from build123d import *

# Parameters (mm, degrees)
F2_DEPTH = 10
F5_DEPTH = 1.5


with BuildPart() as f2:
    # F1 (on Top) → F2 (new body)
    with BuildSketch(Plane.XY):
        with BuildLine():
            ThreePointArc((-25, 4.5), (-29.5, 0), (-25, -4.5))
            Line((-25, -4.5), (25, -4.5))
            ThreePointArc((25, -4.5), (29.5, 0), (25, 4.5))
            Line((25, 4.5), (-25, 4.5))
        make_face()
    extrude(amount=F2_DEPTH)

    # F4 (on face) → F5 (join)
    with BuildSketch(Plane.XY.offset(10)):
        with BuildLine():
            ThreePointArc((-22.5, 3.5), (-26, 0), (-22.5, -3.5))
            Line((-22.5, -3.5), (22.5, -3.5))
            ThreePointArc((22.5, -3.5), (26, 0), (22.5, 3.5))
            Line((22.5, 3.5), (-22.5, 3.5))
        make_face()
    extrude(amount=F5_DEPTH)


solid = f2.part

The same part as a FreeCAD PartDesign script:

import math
import FreeCAD as App
import Part
import Sketcher

V = App.Vector

doc = App.newDocument("Part")
body = doc.addObject("PartDesign::Body", "Body")

# Sketch on XY plane
sketch1 = body.newObject("Sketcher::SketchObject", "Sketch")
sketch1.AttachmentSupport = (doc.getObject("XY_Plane"), [""])
sketch1.MapMode = "FlatFace"
sketch1.addGeometry([
    Part.ArcOfCircle(Part.Circle(V(-25, 0, 0), V(0, 0, 1), 4.5), math.radians(90), math.radians(270)),
    Part.LineSegment(V(-25, -4.5, 0), V(25, -4.5, 0)),
    Part.ArcOfCircle(Part.Circle(V(25, 0, 0), V(0, 0, 1), 4.5), math.radians(-90), math.radians(90)),
    Part.LineSegment(V(25, 4.5, 0), V(-25, 4.5, 0)),
], False)
sketch1.addConstraint([
    Sketcher.Constraint("Tangent", 0, 2, 1, 1),
    Sketcher.Constraint("Tangent", 1, 2, 2, 1),
    Sketcher.Constraint("Tangent", 2, 2, 3, 1),
    Sketcher.Constraint("Tangent", 3, 2, 0, 1),
    Sketcher.Constraint("Horizontal", 1),
    Sketcher.Constraint("Horizontal", 3),
    Sketcher.Constraint("Symmetric", 0, 3, 2, 3, -1, 1),
    Sketcher.Constraint("Radius", 0, 4.5),
    Sketcher.Constraint("DistanceX", 1, 1, 1, 2, 50.0),
])
pad1 = body.newObject("PartDesign::Pad", "Pad")
pad1.Profile = sketch1
pad1.Length = 10

# Sketch on XY plane
sketch2 = body.newObject("Sketcher::SketchObject", "Sketch001")
sketch2.AttachmentSupport = (doc.getObject("XY_Plane"), [""])
sketch2.MapMode = "FlatFace"
sketch2.AttachmentOffset = App.Placement(V(0, 0, 10), App.Rotation())
sketch2.addGeometry([
    Part.ArcOfCircle(Part.Circle(V(-22.5, 0, 0), V(0, 0, 1), 3.5), math.radians(90), math.radians(270)),
    Part.LineSegment(V(-22.5, -3.5, 0), V(22.5, -3.5, 0)),
    Part.ArcOfCircle(Part.Circle(V(22.5, 0, 0), V(0, 0, 1), 3.5), math.radians(-90), math.radians(90)),
    Part.LineSegment(V(22.5, 3.5, 0), V(-22.5, 3.5, 0)),
], False)
sketch2.addConstraint([
    Sketcher.Constraint("Tangent", 0, 2, 1, 1),
    Sketcher.Constraint("Tangent", 1, 2, 2, 1),
    Sketcher.Constraint("Tangent", 2, 2, 3, 1),
    Sketcher.Constraint("Tangent", 3, 2, 0, 1),
    Sketcher.Constraint("Horizontal", 1),
    Sketcher.Constraint("Horizontal", 3),
    Sketcher.Constraint("Symmetric", 0, 3, 2, 3, -1, 1),
    Sketcher.Constraint("Radius", 0, 3.5),
    Sketcher.Constraint("DistanceX", 1, 1, 1, 2, 45.0),
])
pad2 = body.newObject("PartDesign::Pad", "Pad001")
pad2.Profile = sketch2
pad2.Length = 1.5

doc.recompute()
